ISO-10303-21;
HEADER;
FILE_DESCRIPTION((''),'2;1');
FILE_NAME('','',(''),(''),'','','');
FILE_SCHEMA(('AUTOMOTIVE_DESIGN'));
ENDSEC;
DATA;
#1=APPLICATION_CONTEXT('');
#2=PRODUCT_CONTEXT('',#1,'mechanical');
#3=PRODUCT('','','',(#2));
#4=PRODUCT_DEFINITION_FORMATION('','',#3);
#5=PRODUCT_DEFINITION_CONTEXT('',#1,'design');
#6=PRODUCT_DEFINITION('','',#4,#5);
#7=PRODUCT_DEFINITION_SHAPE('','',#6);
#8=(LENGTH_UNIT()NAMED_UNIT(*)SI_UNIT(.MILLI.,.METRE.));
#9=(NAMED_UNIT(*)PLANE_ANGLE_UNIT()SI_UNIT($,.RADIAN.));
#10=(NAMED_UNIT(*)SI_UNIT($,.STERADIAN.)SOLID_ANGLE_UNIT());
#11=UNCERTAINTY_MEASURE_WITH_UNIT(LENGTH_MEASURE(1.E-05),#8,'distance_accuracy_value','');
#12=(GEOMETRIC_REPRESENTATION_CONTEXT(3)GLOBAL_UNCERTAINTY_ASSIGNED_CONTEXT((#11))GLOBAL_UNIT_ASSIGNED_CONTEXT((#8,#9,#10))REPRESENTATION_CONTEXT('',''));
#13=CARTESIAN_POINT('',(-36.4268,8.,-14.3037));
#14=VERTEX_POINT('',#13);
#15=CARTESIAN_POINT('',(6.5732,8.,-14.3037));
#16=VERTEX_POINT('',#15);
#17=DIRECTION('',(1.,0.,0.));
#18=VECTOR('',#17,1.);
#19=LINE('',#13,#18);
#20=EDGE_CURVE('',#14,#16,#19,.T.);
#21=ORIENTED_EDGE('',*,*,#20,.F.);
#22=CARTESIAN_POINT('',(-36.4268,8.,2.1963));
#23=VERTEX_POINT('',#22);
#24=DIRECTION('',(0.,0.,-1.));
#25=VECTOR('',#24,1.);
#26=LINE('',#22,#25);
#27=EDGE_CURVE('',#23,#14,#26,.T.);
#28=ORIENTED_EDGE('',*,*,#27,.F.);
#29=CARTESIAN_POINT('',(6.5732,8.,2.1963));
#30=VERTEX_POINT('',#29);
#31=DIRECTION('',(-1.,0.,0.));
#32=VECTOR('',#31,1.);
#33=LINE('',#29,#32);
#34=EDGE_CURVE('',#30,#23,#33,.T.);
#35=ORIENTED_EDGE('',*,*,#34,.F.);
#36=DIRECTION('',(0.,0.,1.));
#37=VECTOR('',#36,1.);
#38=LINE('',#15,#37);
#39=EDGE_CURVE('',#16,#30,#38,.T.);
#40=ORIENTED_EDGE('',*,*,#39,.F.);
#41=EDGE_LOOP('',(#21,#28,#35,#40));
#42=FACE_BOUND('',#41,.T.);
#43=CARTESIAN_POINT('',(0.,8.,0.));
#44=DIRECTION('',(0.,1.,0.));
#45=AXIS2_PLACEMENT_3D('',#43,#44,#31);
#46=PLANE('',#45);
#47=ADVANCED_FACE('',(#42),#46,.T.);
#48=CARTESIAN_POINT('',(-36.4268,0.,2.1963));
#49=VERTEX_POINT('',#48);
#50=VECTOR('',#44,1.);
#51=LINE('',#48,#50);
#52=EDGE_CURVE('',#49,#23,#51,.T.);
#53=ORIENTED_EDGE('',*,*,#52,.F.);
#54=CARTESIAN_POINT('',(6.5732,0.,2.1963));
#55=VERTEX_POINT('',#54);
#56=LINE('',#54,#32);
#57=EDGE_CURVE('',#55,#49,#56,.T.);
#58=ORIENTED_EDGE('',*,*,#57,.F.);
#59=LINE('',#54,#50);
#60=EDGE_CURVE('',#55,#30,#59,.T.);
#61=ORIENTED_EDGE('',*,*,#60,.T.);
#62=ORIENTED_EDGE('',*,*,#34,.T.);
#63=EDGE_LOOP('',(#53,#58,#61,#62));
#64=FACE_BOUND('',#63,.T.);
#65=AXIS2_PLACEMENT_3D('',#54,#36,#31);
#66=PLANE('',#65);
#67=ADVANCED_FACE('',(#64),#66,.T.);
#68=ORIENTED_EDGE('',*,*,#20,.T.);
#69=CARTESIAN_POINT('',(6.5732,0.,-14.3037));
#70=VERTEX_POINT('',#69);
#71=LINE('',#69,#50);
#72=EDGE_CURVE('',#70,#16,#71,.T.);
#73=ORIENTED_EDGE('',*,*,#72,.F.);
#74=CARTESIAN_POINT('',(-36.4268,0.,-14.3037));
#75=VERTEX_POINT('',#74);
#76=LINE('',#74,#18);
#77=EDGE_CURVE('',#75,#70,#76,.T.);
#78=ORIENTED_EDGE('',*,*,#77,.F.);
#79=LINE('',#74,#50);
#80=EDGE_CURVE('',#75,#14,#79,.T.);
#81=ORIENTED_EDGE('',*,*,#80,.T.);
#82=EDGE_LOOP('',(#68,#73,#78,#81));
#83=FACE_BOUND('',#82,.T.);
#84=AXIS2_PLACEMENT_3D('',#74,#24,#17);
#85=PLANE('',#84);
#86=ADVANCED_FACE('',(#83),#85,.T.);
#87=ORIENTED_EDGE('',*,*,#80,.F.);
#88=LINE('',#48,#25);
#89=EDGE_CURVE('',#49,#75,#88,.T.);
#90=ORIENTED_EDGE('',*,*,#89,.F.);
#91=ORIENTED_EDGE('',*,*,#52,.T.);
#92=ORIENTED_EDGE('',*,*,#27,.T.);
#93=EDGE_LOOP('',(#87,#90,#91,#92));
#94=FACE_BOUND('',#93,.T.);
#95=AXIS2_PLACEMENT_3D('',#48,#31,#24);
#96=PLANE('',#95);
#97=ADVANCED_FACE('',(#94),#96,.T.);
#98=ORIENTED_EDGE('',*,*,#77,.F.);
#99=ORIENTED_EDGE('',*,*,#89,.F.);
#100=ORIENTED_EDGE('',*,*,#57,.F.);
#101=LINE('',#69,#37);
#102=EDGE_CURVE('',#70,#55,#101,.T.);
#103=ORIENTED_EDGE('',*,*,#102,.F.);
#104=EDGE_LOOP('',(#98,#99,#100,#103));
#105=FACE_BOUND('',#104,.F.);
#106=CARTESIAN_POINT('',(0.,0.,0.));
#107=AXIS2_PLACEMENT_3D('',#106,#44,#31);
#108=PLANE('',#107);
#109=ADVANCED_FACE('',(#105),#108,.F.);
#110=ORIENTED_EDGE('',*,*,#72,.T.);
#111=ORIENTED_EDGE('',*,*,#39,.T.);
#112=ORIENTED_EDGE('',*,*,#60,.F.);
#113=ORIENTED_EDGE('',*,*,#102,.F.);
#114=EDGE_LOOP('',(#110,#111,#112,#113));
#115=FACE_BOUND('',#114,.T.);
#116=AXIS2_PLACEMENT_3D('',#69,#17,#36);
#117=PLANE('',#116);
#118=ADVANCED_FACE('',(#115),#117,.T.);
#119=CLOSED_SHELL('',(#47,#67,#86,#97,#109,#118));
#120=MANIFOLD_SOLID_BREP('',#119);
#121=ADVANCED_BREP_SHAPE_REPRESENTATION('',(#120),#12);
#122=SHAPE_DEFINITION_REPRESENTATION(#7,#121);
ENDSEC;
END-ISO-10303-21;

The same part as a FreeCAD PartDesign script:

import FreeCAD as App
import Part
import Sketcher

doc = App.newDocument("Part")
body = doc.addObject("PartDesign::Body", "Body")

# Sketch on XZ plane
sketch1 = body.newObject("Sketcher::SketchObject", "Sketch")
sketch1.AttachmentSupport = (doc.getObject("XZ_Plane"), [""])
sketch1.MapMode = "FlatFace"
sketch1.addGeometry([
    Part.LineSegment(App.Vector(-36, 2, 0), App.Vector(7, 2, 0)),
    Part.LineSegment(App.Vector(7, 2, 0), App.Vector(7, -14, 0)),
    Part.LineSegment(App.Vector(7, -14, 0), App.Vector(-36, -14, 0)),
    Part.LineSegment(App.Vector(-36, -14, 0), App.Vector(-36, 2, 0)),
], False)
sketch1.addConstraint([
    Sketcher.Constraint("Coincident", 0, 2, 1, 1),
    Sketcher.Constraint("Coincident", 1, 2, 2, 1),
    Sketcher.Constraint("Coincident", 2, 2, 3, 1),
    Sketcher.Constraint("Coincident", 3, 2, 0, 1),
    Sketcher.Constraint("Horizontal", 0),
    Sketcher.Constraint("Vertical", 1),
    Sketcher.Constraint("Horizontal", 2),
    Sketcher.Constraint("Vertical", 3),
    Sketcher.Constraint("DistanceX", 0, 1, 0, 2, 43.0),
    Sketcher.Constraint("DistanceY", 1, 2, 1, 1, 16.5),
    Sketcher.Constraint("DistanceX", -1, 1, 0, 2, 6.5732),
    Sketcher.Constraint("DistanceY", -1, 1, 0, 2, 2.1963),
])
pad1 = body.newObject("PartDesign::Pad", "Pad")
pad1.Profile = sketch1
pad1.Length = 8
pad1.Reversed = True

doc.recompute()
